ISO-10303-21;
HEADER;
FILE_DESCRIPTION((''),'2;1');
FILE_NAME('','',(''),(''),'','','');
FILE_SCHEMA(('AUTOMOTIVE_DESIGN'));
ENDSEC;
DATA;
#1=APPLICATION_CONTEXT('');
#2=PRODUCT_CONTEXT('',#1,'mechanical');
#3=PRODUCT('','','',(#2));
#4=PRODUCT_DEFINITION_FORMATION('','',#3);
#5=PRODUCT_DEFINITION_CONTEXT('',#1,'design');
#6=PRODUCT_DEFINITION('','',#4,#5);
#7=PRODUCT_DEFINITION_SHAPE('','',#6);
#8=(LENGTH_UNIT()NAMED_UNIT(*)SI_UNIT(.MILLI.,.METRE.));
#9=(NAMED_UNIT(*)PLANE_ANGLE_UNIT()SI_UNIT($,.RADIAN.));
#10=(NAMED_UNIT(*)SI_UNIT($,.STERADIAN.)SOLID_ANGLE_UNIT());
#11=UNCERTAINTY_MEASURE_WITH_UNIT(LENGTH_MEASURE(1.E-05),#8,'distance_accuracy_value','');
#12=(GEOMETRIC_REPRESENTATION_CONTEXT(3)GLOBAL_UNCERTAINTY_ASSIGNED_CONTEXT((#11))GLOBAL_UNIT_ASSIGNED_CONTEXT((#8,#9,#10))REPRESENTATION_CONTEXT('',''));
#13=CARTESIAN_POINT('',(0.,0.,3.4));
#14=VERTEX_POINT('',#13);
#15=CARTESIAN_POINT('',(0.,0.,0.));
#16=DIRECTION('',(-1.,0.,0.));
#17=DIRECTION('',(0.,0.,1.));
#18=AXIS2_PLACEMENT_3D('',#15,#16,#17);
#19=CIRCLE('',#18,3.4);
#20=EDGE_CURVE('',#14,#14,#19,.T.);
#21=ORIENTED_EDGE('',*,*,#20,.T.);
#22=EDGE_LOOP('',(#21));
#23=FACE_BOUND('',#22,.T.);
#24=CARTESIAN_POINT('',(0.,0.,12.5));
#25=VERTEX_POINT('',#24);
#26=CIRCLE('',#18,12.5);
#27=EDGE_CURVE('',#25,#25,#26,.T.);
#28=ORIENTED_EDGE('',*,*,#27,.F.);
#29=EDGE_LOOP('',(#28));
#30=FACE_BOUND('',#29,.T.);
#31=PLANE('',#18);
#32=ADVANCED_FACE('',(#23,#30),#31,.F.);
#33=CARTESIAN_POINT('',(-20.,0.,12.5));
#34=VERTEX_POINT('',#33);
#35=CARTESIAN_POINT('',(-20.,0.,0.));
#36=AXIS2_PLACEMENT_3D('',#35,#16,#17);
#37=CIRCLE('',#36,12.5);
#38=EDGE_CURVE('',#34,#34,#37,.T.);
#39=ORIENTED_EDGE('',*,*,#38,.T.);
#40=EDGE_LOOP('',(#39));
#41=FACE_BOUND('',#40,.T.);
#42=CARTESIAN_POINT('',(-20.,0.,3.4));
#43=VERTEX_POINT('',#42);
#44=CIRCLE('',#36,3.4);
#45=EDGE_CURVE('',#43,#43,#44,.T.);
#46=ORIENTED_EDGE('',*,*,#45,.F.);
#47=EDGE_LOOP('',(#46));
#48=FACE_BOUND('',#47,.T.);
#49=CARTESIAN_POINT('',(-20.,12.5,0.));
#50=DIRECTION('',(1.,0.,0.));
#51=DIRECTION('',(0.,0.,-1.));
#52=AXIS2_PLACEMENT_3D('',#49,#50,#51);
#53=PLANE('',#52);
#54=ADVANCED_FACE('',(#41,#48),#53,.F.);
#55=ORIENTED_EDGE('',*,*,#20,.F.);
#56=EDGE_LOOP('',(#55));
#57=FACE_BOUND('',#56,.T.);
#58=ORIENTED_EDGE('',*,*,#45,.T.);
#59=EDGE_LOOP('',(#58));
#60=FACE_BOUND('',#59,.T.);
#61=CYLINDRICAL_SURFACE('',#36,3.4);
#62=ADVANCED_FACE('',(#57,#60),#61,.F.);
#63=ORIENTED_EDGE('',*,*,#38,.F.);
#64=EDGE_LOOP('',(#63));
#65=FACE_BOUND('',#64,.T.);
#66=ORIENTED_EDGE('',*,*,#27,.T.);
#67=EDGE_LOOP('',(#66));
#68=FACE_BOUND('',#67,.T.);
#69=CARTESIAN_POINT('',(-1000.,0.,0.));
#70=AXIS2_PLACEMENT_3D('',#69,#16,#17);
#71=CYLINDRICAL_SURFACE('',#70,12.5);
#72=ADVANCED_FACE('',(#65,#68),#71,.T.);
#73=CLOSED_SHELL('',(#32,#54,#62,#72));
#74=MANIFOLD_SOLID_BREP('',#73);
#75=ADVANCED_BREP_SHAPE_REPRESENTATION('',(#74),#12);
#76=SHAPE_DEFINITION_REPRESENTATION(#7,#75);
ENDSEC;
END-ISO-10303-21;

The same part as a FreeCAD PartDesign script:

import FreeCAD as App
import Part
import Sketcher

V = App.Vector
Q = App.Units.Quantity


def add_polygon(sketch, points):
    """Adds a closed chain of lines whose ends are joined by coincident constraints."""
    first, n = sketch.GeometryCount, len(points)
    for a, b in zip(points, points[1:] + points[:1]):
        sketch.addGeometry(Part.LineSegment(App.Vector(*a, 0), App.Vector(*b, 0)), False)
    for i in range(n):
        sketch.addConstraint(Sketcher.Constraint("Coincident", first + i, 2, first + (i + 1) % n, 1))

doc = App.newDocument("Part")
body = doc.addObject("PartDesign::Body", "Body")

# Sketch on XY plane
sketch1 = body.newObject("Sketcher::SketchObject", "Sketch")
sketch1.AttachmentSupport = (doc.getObject("XY_Plane"), [""])
sketch1.MapMode = "FlatFace"
add_polygon(sketch1, [(-20, 12), (-20, 0), (0, 0), (0, 12)])  # lines 0-3
sketch1.addConstraint([
    Sketcher.Constraint("Vertical", 0),
    Sketcher.Constraint("Horizontal", 1),
    Sketcher.Constraint("Vertical", 2),
    Sketcher.Constraint("Horizontal", 3),
    Sketcher.Constraint("Coincident", 1, 2, -1, 1),
    Sketcher.Constraint("DistanceX", 1, 1, 1, 2, Q("20 mm")),
    Sketcher.Constraint("DistanceY", 0, 2, 0, 1, Q("12.5 mm")),
])
revolution = body.newObject("PartDesign::Revolution", "Revolution")
revolution.Profile = sketch1
revolution.ReferenceAxis = (sketch1, ["H_Axis"])
revolution.Angle = 360

# Sketch on YZ plane
sketch2 = body.newObject("Sketcher::SketchObject", "Sketch001")
sketch2.AttachmentSupport = (doc.getObject("YZ_Plane"), [""])
sketch2.MapMode = "FlatFace"
sketch2.AttachmentOffset = App.Placement(V(0, 0, -20), App.Rotation())
sketch2.addGeometry(Part.Circle(V(0, 0, 0), V(0, 0, 1), 3.4), False)
sketch2.addConstraint([
    Sketcher.Constraint("Coincident", 0, 3, -1, 1),
    Sketcher.Constraint("Diameter", 0, Q("6.8 mm")),
])
doc.recompute()
hole = body.newObject("PartDesign::Hole", "Hole")
hole.Profile = sketch2
hole.ThreadType = "None"
hole.Diameter = 6.8
hole.DepthType = "ThroughAll"
hole.Reversed = True

doc.recompute()
